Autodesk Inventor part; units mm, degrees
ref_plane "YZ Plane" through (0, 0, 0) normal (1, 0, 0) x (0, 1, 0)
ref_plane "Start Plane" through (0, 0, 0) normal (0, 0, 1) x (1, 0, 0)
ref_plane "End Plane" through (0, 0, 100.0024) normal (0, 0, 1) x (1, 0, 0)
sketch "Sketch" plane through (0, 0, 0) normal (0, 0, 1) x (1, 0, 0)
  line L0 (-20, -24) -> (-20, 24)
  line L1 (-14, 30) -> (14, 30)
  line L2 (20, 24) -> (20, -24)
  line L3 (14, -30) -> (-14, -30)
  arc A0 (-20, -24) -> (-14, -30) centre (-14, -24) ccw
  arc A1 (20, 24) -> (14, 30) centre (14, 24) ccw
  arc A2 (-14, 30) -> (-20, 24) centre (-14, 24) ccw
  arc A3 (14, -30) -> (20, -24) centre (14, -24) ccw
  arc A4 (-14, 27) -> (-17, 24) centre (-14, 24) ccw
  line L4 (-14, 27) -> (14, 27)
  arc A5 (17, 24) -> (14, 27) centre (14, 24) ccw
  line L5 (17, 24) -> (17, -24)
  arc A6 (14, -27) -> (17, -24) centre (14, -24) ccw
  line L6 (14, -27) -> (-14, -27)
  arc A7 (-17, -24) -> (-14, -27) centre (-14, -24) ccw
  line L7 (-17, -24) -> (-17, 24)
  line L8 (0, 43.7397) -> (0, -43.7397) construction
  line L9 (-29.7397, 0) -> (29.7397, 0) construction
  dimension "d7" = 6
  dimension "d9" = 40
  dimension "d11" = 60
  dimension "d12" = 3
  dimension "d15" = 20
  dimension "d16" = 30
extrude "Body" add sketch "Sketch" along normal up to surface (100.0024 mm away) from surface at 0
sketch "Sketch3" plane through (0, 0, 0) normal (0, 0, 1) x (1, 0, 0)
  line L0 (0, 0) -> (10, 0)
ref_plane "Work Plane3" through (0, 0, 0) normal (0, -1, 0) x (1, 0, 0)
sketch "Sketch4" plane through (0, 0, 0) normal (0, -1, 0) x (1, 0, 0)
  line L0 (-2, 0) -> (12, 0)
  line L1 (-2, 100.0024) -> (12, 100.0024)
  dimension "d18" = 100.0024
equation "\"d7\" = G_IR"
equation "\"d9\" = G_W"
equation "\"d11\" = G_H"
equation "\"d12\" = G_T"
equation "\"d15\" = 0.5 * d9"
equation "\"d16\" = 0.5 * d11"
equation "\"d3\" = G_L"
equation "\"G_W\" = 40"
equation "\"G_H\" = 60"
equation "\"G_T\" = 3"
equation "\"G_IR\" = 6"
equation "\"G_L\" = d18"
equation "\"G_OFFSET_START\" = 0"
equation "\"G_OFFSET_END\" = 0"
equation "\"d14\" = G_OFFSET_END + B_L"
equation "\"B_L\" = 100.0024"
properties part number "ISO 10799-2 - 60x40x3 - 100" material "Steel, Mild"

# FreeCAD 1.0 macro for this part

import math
import FreeCAD as App
import Part
import Sketcher
Q = App.Units.Quantity

doc = App.newDocument("Part")
body = doc.addObject("PartDesign::Body", "Body")

# Sketch on XY plane
sketch1 = body.newObject("Sketcher::SketchObject", "Sketch")
sketch1.AttachmentSupport = (doc.getObject("XY_Plane"), [""])
sketch1.MapMode = "FlatFace"
sketch1.addGeometry([
    Part.LineSegment(App.Vector(-20, 24, 0), App.Vector(-20, -24, 0)),  # 0
    Part.ArcOfCircle(Part.Circle(App.Vector(-14, -24, 0), App.Vector(0, 0, 1), 6), math.radians(180), math.radians(270)),  # 1
    Part.LineSegment(App.Vector(-14, -30, 0), App.Vector(14, -30, 0)),  # 2
    Part.ArcOfCircle(Part.Circle(App.Vector(14, -24, 0), App.Vector(0, 0, 1), 6), math.radians(-90), math.radians(0)),  # 3
    Part.LineSegment(App.Vector(20, -24, 0), App.Vector(20, 24, 0)),  # 4
    Part.ArcOfCircle(Part.Circle(App.Vector(14, 24, 0), App.Vector(0, 0, 1), 6), math.radians(0), math.radians(90)),  # 5
    Part.LineSegment(App.Vector(14, 30, 0), App.Vector(-14, 30, 0)),  # 6
    Part.ArcOfCircle(Part.Circle(App.Vector(-14, 24, 0), App.Vector(0, 0, 1), 6), math.radians(90), math.radians(180)),  # 7
    Part.ArcOfCircle(Part.Circle(App.Vector(-14, 24, 0), App.Vector(0, 0, 1), 3), math.radians(90), math.radians(180)),  # 8
    Part.LineSegment(App.Vector(-14, 27, 0), App.Vector(14, 27, 0)),  # 9
    Part.ArcOfCircle(Part.Circle(App.Vector(14, 24, 0), App.Vector(0, 0, 1), 3), math.radians(0), math.radians(90)),  # 10
    Part.LineSegment(App.Vector(17, 24, 0), App.Vector(17, -24, 0)),  # 11
    Part.ArcOfCircle(Part.Circle(App.Vector(14, -24, 0), App.Vector(0, 0, 1), 3), math.radians(-90), math.radians(0)),  # 12
    Part.LineSegment(App.Vector(14, -27, 0), App.Vector(-14, -27, 0)),  # 13
    Part.ArcOfCircle(Part.Circle(App.Vector(-14, -24, 0), App.Vector(0, 0, 1), 3), math.radians(180), math.radians(270)),  # 14
    Part.LineSegment(App.Vector(-17, -24, 0), App.Vector(-17, 24, 0)),  # 15
], False)
sketch1.addConstraint([
    Sketcher.Constraint("Tangent", 0, 2, 1, 1),
    Sketcher.Constraint("Tangent", 1, 2, 2, 1),
    Sketcher.Constraint("Tangent", 2, 2, 3, 1),
    Sketcher.Constraint("Tangent", 3, 2, 4, 1),
    Sketcher.Constraint("Tangent", 4, 2, 5, 1),
    Sketcher.Constraint("Tangent", 5, 2, 6, 1),
    Sketcher.Constraint("Tangent", 6, 2, 7, 1),
    Sketcher.Constraint("Tangent", 7, 2, 0, 1),
    Sketcher.Constraint("Tangent", 8, 1, 9, 1),
    Sketcher.Constraint("Tangent", 9, 2, 10, 2),
    Sketcher.Constraint("Tangent", 10, 1, 11, 1),
    Sketcher.Constraint("Tangent", 11, 2, 12, 2),
    Sketcher.Constraint("Tangent", 12, 1, 13, 1),
    Sketcher.Constraint("Tangent", 13, 2, 14, 2),
    Sketcher.Constraint("Tangent", 14, 1, 15, 1),
    Sketcher.Constraint("Tangent", 15, 2, 8, 2),
    Sketcher.Constraint("Vertical", 0),
    Sketcher.Constraint("Horizontal", 2),
    Sketcher.Constraint("Vertical", 4),
    Sketcher.Constraint("Horizontal", 6),
    Sketcher.Constraint("Horizontal", 9),
    Sketcher.Constraint("Vertical", 11),
    Sketcher.Constraint("Horizontal", 13),
    Sketcher.Constraint("Vertical", 15),
    Sketcher.Constraint("Coincident", 8, 3, 7, 3),
    Sketcher.Constraint("Coincident", 10, 3, 5, 3),
    Sketcher.Constraint("Coincident", 12, 3, 3, 3),
    Sketcher.Constraint("Equal", 1, 3),
    Sketcher.Constraint("Equal", 3, 5),
    Sketcher.Constraint("Equal", 5, 7),
    Sketcher.Constraint("Equal", 12, 14),
    Sketcher.Constraint("Symmetric", 1, 3, 5, 3, -1, 1),
    Sketcher.Constraint("Radius", 1, Q("6 mm")),
    Sketcher.Constraint("Radius", 8, Q("3 mm")),
    Sketcher.Constraint("DistanceX", 0, 2, -1, 1, Q("20 mm")),
    Sketcher.Constraint("DistanceY", 1, 2, -1, 1, Q("30 mm")),
])
pad1 = body.newObject("PartDesign::Pad", "Pad")
pad1.Profile = sketch1
pad1.Length = 100.0024

doc.recompute()
